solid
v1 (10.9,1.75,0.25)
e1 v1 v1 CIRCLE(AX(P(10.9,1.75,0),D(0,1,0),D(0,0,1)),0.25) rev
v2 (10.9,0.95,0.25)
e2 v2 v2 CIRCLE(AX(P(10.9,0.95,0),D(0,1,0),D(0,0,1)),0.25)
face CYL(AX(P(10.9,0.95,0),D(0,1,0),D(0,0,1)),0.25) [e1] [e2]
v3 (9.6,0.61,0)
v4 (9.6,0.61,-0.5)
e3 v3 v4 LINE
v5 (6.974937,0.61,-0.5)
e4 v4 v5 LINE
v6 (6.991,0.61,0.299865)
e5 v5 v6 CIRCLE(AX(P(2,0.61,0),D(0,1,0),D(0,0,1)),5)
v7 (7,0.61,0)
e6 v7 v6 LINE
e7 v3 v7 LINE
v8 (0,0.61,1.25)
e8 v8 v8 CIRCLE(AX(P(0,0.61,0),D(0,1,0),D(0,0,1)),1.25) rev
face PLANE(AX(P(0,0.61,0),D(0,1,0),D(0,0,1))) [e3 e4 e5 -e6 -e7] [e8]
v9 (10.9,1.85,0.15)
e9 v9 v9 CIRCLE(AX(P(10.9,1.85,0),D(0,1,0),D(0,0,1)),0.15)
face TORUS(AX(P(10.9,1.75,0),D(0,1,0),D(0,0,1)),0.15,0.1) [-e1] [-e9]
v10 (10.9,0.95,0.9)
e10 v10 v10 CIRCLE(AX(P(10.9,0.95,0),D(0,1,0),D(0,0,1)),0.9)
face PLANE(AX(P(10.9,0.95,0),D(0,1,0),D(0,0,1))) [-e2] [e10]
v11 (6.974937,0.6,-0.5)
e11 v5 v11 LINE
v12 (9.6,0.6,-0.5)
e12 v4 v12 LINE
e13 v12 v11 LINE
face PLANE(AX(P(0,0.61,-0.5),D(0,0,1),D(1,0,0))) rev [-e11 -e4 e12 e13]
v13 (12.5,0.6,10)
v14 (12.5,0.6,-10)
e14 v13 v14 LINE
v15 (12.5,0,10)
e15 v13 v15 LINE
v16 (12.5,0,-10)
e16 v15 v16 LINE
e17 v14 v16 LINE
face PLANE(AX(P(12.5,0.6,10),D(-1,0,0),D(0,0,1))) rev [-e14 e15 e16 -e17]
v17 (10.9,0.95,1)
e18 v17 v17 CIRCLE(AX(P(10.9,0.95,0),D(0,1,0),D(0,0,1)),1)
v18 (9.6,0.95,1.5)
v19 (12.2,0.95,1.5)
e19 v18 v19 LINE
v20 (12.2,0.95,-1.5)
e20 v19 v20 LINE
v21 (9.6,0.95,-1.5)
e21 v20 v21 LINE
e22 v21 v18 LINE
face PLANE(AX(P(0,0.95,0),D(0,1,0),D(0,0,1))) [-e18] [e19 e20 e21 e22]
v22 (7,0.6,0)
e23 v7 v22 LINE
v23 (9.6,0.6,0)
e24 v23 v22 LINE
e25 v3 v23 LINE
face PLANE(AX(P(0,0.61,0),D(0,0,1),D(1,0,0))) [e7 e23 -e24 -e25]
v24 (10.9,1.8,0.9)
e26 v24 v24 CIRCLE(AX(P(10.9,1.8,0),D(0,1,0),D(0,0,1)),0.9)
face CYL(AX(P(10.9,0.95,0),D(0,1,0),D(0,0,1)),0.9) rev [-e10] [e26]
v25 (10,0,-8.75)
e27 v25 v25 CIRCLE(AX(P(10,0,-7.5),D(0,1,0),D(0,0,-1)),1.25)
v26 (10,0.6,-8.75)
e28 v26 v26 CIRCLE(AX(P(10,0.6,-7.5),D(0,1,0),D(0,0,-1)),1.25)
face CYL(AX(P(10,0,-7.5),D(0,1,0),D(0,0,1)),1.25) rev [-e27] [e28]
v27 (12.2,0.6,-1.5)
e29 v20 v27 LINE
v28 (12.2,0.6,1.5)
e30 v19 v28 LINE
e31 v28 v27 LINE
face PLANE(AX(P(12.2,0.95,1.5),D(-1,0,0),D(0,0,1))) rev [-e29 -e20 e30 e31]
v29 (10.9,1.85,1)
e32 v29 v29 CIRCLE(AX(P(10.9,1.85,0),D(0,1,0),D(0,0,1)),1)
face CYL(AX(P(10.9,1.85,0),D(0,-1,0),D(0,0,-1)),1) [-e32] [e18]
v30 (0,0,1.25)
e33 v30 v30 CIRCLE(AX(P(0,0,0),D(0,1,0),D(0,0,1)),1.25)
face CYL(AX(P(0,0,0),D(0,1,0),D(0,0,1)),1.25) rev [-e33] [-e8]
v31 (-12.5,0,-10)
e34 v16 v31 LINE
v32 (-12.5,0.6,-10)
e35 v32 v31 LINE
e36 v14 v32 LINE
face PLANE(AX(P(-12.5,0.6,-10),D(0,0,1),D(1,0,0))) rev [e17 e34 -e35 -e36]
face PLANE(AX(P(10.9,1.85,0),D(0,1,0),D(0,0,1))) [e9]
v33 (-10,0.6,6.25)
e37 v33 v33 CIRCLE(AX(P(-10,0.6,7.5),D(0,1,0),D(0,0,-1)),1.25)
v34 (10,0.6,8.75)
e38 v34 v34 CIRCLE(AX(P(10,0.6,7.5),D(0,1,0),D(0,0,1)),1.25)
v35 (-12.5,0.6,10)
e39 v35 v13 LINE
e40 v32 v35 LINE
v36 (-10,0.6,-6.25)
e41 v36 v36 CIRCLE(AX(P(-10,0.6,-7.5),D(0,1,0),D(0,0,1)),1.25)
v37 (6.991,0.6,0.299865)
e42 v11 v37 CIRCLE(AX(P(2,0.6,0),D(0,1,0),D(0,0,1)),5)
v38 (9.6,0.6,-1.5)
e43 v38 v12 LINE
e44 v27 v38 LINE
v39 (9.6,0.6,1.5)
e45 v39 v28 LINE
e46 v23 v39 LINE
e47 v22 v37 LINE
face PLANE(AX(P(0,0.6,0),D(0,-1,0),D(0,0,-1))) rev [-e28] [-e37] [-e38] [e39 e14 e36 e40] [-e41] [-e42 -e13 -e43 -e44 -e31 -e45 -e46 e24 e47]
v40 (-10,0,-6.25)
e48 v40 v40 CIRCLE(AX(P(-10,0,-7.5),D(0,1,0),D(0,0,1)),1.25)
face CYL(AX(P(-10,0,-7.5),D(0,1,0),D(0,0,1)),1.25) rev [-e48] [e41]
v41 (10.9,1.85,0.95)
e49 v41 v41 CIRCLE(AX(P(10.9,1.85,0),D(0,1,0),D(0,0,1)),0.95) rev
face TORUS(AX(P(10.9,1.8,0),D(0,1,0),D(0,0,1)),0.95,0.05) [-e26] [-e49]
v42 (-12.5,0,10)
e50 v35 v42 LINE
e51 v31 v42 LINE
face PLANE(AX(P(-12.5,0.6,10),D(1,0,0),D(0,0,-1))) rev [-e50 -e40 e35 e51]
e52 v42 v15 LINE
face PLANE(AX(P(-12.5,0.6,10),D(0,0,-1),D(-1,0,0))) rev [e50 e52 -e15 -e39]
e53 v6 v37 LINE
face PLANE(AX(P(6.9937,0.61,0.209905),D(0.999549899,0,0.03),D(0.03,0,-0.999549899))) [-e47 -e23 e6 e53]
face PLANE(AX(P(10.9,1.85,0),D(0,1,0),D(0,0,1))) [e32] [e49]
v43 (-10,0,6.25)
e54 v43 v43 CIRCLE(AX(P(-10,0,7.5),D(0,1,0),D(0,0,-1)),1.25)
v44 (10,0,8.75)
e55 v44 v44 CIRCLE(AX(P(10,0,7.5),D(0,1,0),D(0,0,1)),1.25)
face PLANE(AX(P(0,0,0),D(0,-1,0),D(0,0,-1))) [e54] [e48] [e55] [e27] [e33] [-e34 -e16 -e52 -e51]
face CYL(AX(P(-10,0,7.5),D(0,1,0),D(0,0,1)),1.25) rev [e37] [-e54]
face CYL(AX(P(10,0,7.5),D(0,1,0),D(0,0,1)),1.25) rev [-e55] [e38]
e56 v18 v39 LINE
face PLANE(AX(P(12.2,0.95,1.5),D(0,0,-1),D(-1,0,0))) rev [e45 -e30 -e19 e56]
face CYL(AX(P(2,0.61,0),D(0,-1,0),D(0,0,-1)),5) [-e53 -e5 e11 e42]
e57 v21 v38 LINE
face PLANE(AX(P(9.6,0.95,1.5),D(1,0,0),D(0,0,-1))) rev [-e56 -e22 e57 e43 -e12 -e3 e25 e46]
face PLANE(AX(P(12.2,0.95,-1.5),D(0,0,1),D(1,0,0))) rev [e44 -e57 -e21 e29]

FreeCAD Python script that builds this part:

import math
import FreeCAD as App
import Part
import Sketcher

V = App.Vector


def edges_at(feature, points):
    """Names of the edges that pass closest to the given points."""
    edges = feature.Shape.Edges
    near = lambda p: min(range(len(edges)), key=lambda i: edges[i].distToShape(Part.Vertex(*p))[0])
    return sorted({f"Edge{near(p) + 1}" for p in points})

doc = App.newDocument("Part")
body = doc.addObject("PartDesign::Body", "Body")

# Sketch on XZ plane
sketch1 = body.newObject("Sketcher::SketchObject", "Sketch")
sketch1.AttachmentSupport = (doc.getObject("XZ_Plane"), [""])
sketch1.MapMode = "FlatFace"
sketch1.addGeometry([
    Part.LineSegment(V(-12, -10, 0), V(-12, 10, 0)),
    Part.LineSegment(V(-12, 10, 0), V(12, 10, 0)),
    Part.LineSegment(V(12, 10, 0), V(12, -10, 0)),
    Part.LineSegment(V(12, -10, 0), V(-12, -10, 0)),
], False)
sketch1.addConstraint([
    Sketcher.Constraint("Coincident", 0, 2, 1, 1),
    Sketcher.Constraint("Coincident", 1, 2, 2, 1),
    Sketcher.Constraint("Coincident", 2, 2, 3, 1),
    Sketcher.Constraint("Coincident", 3, 2, 0, 1),
    Sketcher.Constraint("Vertical", 0),
    Sketcher.Constraint("Horizontal", 1),
    Sketcher.Constraint("Vertical", 2),
    Sketcher.Constraint("Horizontal", 3),
    Sketcher.Constraint("Symmetric", 0, 2, 2, 2, -1, 1),
    Sketcher.Constraint("DistanceX", 1, 1, 1, 2, 25.0),
    Sketcher.Constraint("DistanceY", 0, 1, 0, 2, 20.0),
])
pad1 = body.newObject("PartDesign::Pad", "Pad")
pad1.Profile = sketch1
pad1.Length = 0.6
pad1.Reversed = True

# Sketch on XZ plane
sketch2 = body.newObject("Sketcher::SketchObject", "Sketch001")
sketch2.AttachmentSupport = (doc.getObject("XZ_Plane"), [""])
sketch2.MapMode = "FlatFace"
sketch2.AttachmentOffset = App.Placement(V(0, 0, -0.6), App.Rotation())
sketch2.addGeometry([
    Part.Circle(V(-10, -7.5, 0), V(0, 0, 1), 1.2),  # 0
    Part.Circle(V(10, -7.5, 0), V(0, 0, 1), 1.2),  # 1
    Part.Circle(V(10, 7.5, 0), V(0, 0, 1), 1.2),  # 2
    Part.Circle(V(-10, 7.5, 0), V(0, 0, 1), 1.2),  # 3
    Part.Circle(V(0, 0, 0), V(0, 0, 1), 1.2),  # 4
], False)
sketch2.addConstraint([
    Sketcher.Constraint("Coincident", 4, 3, -1, 1),
    Sketcher.Constraint("Equal", 0, 1),
    Sketcher.Constraint("Equal", 1, 2),
    Sketcher.Constraint("Equal", 2, 3),
    Sketcher.Constraint("Equal", 3, 4),
    Sketcher.Constraint("Symmetric", 0, 3, 2, 3, -1, 1),
    Sketcher.Constraint("Symmetric", 1, 3, 3, 3, -1, 1),
    Sketcher.Constraint("Symmetric", 0, 3, 1, 3, -2),
    Sketcher.Constraint("Diameter", 0, 2.5),
    Sketcher.Constraint("DistanceX", 0, 3, -1, 1, 10.0),
    Sketcher.Constraint("DistanceY", 1, 3, 2, 3, 15.0),
])
pocket1 = body.newObject("PartDesign::Pocket", "Pocket")
pocket1.Profile = sketch2
pocket1.Length = 0.6
pocket1.Reversed = True

# Sketch on XZ plane
sketch3 = body.newObject("Sketcher::SketchObject", "Sketch002")
sketch3.AttachmentSupport = (doc.getObject("XZ_Plane"), [""])
sketch3.MapMode = "FlatFace"
sketch3.AttachmentOffset = App.Placement(V(0, 0, -0.6), App.Rotation())
sketch3.addGeometry([
    Part.LineSegment(V(9.6, -1.5, 0), V(9.6, 1.5, 0)),
    Part.LineSegment(V(9.6, 1.5, 0), V(12.2, 1.5, 0)),
    Part.LineSegment(V(12.2, 1.5, 0), V(12.2, -1.5, 0)),
    Part.LineSegment(V(12.2, -1.5, 0), V(9.6, -1.5, 0)),
], False)
sketch3.addConstraint([
    Sketcher.Constraint("Coincident", 0, 2, 1, 1),
    Sketcher.Constraint("Coincident", 1, 2, 2, 1),
    Sketcher.Constraint("Coincident", 2, 2, 3, 1),
    Sketcher.Constraint("Coincident", 3, 2, 0, 1),
    Sketcher.Constraint("Vertical", 0),
    Sketcher.Constraint("Horizontal", 1),
    Sketcher.Constraint("Vertical", 2),
    Sketcher.Constraint("Horizontal", 3),
    Sketcher.Constraint("DistanceY", 0, 1, 0, 2, 3.0),
    Sketcher.Constraint("DistanceX", 1, 1, 1, 2, 2.6),
    Sketcher.Constraint("DistanceX", -1, 1, 0, 2, 9.6),
    Sketcher.Constraint("DistanceY", -1, 1, 0, 2, 1.5),
])
pad2 = body.newObject("PartDesign::Pad", "Pad001")
pad2.Profile = sketch3
pad2.Length = 0.35
pad2.Reversed = True

# Sketch on XZ plane
sketch4 = body.newObject("Sketcher::SketchObject", "Sketch003")
sketch4.AttachmentSupport = (doc.getObject("XZ_Plane"), [""])
sketch4.MapMode = "FlatFace"
sketch4.AttachmentOffset = App.Placement(V(0, 0, -0.95), App.Rotation())
sketch4.addGeometry(Part.Circle(V(10.9, 0, 0), V(0, 0, 1), 1), False)
sketch4.addConstraint([
    Sketcher.Constraint("PointOnObject", 0, 3, -1),
    Sketcher.Constraint("Diameter", 0, 2.0),
    Sketcher.Constraint("DistanceX", -1, 1, 0, 3, 10.9),
])
pad3 = body.newObject("PartDesign::Pad", "Pad002")
pad3.Profile = sketch4
pad3.Length = 0.9
pad3.Reversed = True

# Sketch on XZ plane
sketch5 = body.newObject("Sketcher::SketchObject", "Sketch004")
sketch5.AttachmentSupport = (doc.getObject("XZ_Plane"), [""])
sketch5.MapMode = "FlatFace"
sketch5.AttachmentOffset = App.Placement(V(0, 0, -1.85), App.Rotation())
sketch5.addGeometry([
    Part.Circle(V(10.9, 0, 0), V(0, 0, 1), 0.9),
    Part.Circle(V(10.9, 0, 0), V(0, 0, 1), 0.25),
], False)
sketch5.addConstraint([
    Sketcher.Constraint("Coincident", 1, 3, 0, 3),
    Sketcher.Constraint("PointOnObject", 0, 3, -1),
    Sketcher.Constraint("Diameter", 0, 1.8),
    Sketcher.Constraint("Diameter", 1, 0.5),
    Sketcher.Constraint("DistanceX", -1, 1, 0, 3, 10.9),
])
pocket2 = body.newObject("PartDesign::Pocket", "Pocket001")
pocket2.Profile = sketch5
pocket2.Length = 0.9
pocket2.Reversed = True
doc.recompute()

fillet = body.newObject("PartDesign::Fillet", "Fillet")
fillet.Base = (pocket2, edges_at(pocket2, [(10.9, 1.85, -0.25)]))
fillet.Radius = 0.1
doc.recompute()

fillet2 = body.newObject("PartDesign::Fillet", "Fillet001")
fillet2.Base = (fillet, edges_at(fillet, [(10.9, 1.85, -0.9)]))
fillet2.Radius = 0.05

# Sketch on XZ plane
sketch6 = body.newObject("Sketcher::SketchObject", "Sketch005")
sketch6.AttachmentSupport = (doc.getObject("XZ_Plane"), [""])
sketch6.MapMode = "FlatFace"
sketch6.AttachmentOffset = App.Placement(V(0, 0, -0.61), App.Rotation())
sketch6.addGeometry([
    Part.LineSegment(V(6.99, 0.3, 0), V(7, 0, 0)),  # 0
    Part.LineSegment(V(7, 0, 0), V(9.6, 0, 0)),  # 1
    Part.LineSegment(V(9.6, 0, 0), V(9.6, -0.5, 0)),  # 2
    Part.LineSegment(V(9.6, -0.5, 0), V(6.97, -0.5, 0)),  # 3
    Part.ArcOfCircle(Part.Circle(V(2, 0, 0), V(0, 0, 1), 5), math.radians(3), math.radians(354)),  # 4
    Part.Circle(V(0, 0, 0), V(0, 0, 1), 1.25),  # 5
], False)
sketch6.addConstraint([
    Sketcher.Constraint("Coincident", 0, 2, 1, 1),
    Sketcher.Constraint("Coincident", 1, 2, 2, 1),
    Sketcher.Constraint("Coincident", 2, 2, 3, 1),
    Sketcher.Constraint("Coincident", 3, 2, 4, 2),
    Sketcher.Constraint("Coincident", 4, 1, 0, 1),
    Sketcher.Constraint("Horizontal", 1),
    Sketcher.Constraint("Vertical", 2),
    Sketcher.Constraint("Horizontal", 3),
    Sketcher.Constraint("Coincident", 5, 3, -1, 1),
    Sketcher.Constraint("PointOnObject", 4, 3, -1),
    Sketcher.Constraint("PointOnObject", 0, 2, -1),
    Sketcher.Constraint("Radius", 4, 5.0),
    Sketcher.Constraint("Diameter", 5, 2.5),
    Sketcher.Constraint("DistanceX", 1, 1, 1, 2, 2.6),
    Sketcher.Constraint("DistanceY", 2, 2, 2, 1, 0.5),
    Sketcher.Constraint("DistanceX", -1, 1, 4, 3, 2.0),
    Sketcher.Constraint("DistanceX", -1, 1, 0, 2, 7.0),
    Sketcher.Constraint("Distance", 0, 0.3),
])
pad4 = body.newObject("PartDesign::Pad", "Pad003")
pad4.Profile = sketch6
pad4.Length = 0.01

doc.recompute()
